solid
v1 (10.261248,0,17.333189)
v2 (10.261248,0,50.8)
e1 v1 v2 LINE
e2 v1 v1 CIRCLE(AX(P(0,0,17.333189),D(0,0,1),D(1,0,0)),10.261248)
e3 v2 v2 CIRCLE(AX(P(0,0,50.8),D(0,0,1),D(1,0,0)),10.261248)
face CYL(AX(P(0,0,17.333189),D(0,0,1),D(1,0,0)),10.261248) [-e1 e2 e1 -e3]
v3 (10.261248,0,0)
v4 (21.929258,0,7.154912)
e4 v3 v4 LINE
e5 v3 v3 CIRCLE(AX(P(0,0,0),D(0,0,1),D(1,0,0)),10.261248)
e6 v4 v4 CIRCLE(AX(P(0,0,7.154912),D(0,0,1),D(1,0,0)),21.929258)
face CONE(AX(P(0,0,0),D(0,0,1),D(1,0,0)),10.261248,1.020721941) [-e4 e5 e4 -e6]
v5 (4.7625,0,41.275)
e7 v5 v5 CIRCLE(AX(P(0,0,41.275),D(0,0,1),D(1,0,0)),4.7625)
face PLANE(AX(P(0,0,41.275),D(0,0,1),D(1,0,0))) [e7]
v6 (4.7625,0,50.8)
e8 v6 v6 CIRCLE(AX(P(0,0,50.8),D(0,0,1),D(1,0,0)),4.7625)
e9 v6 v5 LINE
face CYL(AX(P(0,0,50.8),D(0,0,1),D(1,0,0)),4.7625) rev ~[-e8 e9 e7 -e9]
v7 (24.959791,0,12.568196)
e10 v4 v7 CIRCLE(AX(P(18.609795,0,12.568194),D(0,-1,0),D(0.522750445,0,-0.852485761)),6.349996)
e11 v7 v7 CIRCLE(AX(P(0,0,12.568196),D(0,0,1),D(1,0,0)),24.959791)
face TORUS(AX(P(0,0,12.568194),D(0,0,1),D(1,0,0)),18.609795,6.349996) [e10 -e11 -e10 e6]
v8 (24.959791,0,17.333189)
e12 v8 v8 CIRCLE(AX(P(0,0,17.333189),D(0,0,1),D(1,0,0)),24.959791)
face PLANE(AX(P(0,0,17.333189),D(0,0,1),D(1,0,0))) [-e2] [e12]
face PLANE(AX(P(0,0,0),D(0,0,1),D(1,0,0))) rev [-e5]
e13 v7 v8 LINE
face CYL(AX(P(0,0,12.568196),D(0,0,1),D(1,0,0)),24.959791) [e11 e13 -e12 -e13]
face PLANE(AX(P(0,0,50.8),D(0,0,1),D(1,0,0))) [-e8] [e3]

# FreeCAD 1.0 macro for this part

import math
import FreeCAD as App
import Part
import Sketcher
Q = App.Units.Quantity

doc = App.newDocument("Part")
body = doc.addObject("PartDesign::Body", "Body")

sketch1 = body.newObject("Sketcher::SketchObject", "Sketch")
sketch1.AttachmentSupport = (doc.getObject("XZ_Plane"), [""])
sketch1.MapMode = "FlatFace"
sketch1.addGeometry([
    Part.LineSegment(App.Vector(0, 50.8, 0), App.Vector(0, 0, 0)),
    Part.LineSegment(App.Vector(0, 0, 0), App.Vector(10.3, 0, 0)),
    Part.LineSegment(App.Vector(10.3, 0, 0), App.Vector(21.9, 7.2, 0)),
    Part.ArcOfCircle(Part.Circle(App.Vector(18.6, 12.6, 0), App.Vector(0, 0, 1), 6.3), math.radians(-58), math.radians(0)),
    Part.LineSegment(App.Vector(25, 12.6, 0), App.Vector(25, 17.3, 0)),
    Part.LineSegment(App.Vector(25, 17.3, 0), App.Vector(10.3, 17.3, 0)),
    Part.LineSegment(App.Vector(10.3, 17.3, 0), App.Vector(10.3, 50.8, 0)),
    Part.LineSegment(App.Vector(10.3, 50.8, 0), App.Vector(0, 50.8, 0)),
], False)
sketch1.addConstraint([
    Sketcher.Constraint("Coincident", 0, 2, 1, 1),
    Sketcher.Constraint("Coincident", 1, 2, 2, 1),
    Sketcher.Constraint("Tangent", 2, 2, 3, 1),
    Sketcher.Constraint("Tangent", 3, 2, 4, 1),
    Sketcher.Constraint("Coincident", 4, 2, 5, 1),
    Sketcher.Constraint("Coincident", 5, 2, 6, 1),
    Sketcher.Constraint("Coincident", 6, 2, 7, 1),
    Sketcher.Constraint("Coincident", 7, 2, 0, 1),
    Sketcher.Constraint("Vertical", 0),
    Sketcher.Constraint("Horizontal", 1),
    Sketcher.Constraint("Vertical", 4),
    Sketcher.Constraint("Horizontal", 5),
    Sketcher.Constraint("Vertical", 6),
    Sketcher.Constraint("Horizontal", 7),
    Sketcher.Constraint("Coincident", 0, 2, -1, 1),
    Sketcher.Constraint("Vertical", 1, 2, 5, 2),
    Sketcher.Constraint("DistanceY", 0, 2, 0, 1, Q("2 in")),
    Sketcher.Constraint("Radius", 3, Q("0.2499999 in")),
    Sketcher.Constraint("DistanceY", 6, 1, 6, 2, Q("33.466811 mm")),
    Sketcher.Constraint("DistanceX", 1, 1, 1, 2, Q("10.261248 mm")),
    Sketcher.Constraint("DistanceX", 5, 2, 5, 1, Q("14.698543 mm")),
    Sketcher.Constraint("DistanceY", 4, 1, 4, 2, Q("4.764993 mm")),
])
revolution = body.newObject("PartDesign::Revolution", "Revolution")
revolution.Profile = sketch1
revolution.ReferenceAxis = (sketch1, ["V_Axis"])
revolution.Angle = 360

sketch2 = body.newObject("Sketcher::SketchObject", "Sketch001")
sketch2.AttachmentSupport = (doc.getObject("XY_Plane"), [""])
sketch2.MapMode = "FlatFace"
sketch2.AttachmentOffset = App.Placement(App.Vector(0, 0, 2 * 25.4), App.Rotation())
sketch2.addGeometry(Part.Circle(App.Vector(0, 0, 0), App.Vector(0, 0, 1), 4.8), False)
sketch2.addConstraint([
    Sketcher.Constraint("Coincident", 0, 3, -1, 1),
    Sketcher.Constraint("Diameter", 0, Q("0.375 in")),
])
pocket1 = body.newObject("PartDesign::Pocket", "Pocket")
pocket1.Profile = sketch2
pocket1.Length = Q("0.375 in")

doc.recompute()
